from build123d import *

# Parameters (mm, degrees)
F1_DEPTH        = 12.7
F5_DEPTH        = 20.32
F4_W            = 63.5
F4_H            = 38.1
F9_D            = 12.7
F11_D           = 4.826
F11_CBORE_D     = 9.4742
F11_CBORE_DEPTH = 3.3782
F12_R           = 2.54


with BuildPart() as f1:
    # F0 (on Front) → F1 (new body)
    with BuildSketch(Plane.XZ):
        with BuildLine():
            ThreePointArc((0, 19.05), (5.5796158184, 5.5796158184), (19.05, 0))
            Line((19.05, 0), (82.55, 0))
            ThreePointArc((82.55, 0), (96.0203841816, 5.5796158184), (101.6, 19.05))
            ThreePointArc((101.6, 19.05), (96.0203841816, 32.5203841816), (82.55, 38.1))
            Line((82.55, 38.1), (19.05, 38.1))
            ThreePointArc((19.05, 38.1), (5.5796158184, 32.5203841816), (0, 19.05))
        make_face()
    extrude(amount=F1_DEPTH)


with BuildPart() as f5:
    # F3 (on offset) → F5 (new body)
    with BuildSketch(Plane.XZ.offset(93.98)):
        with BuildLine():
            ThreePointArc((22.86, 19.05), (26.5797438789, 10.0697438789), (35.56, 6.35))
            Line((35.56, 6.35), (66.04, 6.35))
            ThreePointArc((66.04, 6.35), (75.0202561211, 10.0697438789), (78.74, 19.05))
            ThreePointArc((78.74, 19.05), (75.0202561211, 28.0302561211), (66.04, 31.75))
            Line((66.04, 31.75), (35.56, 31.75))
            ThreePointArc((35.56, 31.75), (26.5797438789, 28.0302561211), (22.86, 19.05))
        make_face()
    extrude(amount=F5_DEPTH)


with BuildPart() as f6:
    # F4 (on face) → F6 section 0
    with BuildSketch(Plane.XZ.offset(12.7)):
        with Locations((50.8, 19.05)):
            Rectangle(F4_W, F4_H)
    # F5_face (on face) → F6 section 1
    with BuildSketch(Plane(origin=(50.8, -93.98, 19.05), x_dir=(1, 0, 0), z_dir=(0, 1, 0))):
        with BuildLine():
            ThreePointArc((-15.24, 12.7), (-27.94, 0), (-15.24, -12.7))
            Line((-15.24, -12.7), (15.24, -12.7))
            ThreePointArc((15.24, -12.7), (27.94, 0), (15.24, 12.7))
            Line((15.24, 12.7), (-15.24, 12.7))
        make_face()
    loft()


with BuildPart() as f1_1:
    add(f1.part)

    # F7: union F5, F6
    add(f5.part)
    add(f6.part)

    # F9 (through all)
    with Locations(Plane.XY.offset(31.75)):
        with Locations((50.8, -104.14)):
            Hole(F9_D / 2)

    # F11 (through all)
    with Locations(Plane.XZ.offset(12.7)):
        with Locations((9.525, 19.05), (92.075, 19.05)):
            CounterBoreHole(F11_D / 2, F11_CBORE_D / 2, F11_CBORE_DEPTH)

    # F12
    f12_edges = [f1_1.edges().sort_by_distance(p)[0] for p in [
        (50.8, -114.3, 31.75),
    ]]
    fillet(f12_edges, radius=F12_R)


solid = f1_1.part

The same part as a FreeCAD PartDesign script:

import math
import FreeCAD as App
import Part
import Sketcher
Q = App.Units.Quantity


def edges_at(feature, points):
    """Names of the edges that pass closest to the given points."""
    edges = feature.Shape.Edges
    near = lambda p: min(range(len(edges)), key=lambda i: edges[i].distToShape(Part.Vertex(*p))[0])
    return sorted({f"Edge{near(p) + 1}" for p in points})

doc = App.newDocument("Part")
params = doc.addObject("Spreadsheet::Sheet", "Params")
for row, (alias, value) in enumerate([
    ("sketch1_radius", "0.75 in"),
    ("sketch1_width", "2.5 in"),
    ("pad1_length", "0.5 in"),
    ("sketch2_radius", "0.5 in"),
    ("sketch2_width", "1.2 in"),
    ("pad2_length", "0.8 in"),
    ("sketch3_width", "2.5 in"),
    ("sketch3_height", "1.5 in"),
    ("sketch4_radius", "0.5 in"),
    ("sketch4_width", "1.2 in"),
    ("sketch5_diameter", "0.5 in"),
    ("hole_diameter", "0.5 in"),
    ("sketch6_diameter", "0.19 in"),
    ("hole2_diameter", "0.19 in"),
    ("hole2_cbore_diameter", "0.373 in"),
    ("hole2_cbore_depth", "0.133 in"),
    ("fillet_radius", "0.1 in"),
], start=1):
    params.set(f"A{row}", alias)
    params.set(f"B{row}", "=" + value)
    params.setAlias(f"B{row}", alias)

body = doc.addObject("PartDesign::Body", "Body")

sketch1 = body.newObject("Sketcher::SketchObject", "Sketch")
sketch1.AttachmentSupport = (doc.getObject("XZ_Plane"), [""])
sketch1.MapMode = "FlatFace"
sketch1.addGeometry(Part.ArcOfCircle(Part.Circle(App.Vector(19.05, 19.05, 0), App.Vector(0, 0, 1), 19.05), math.radians(180), math.radians(270)), False)
sketch1.addGeometry(Part.LineSegment(App.Vector(19.05, 0, 0), App.Vector(82.55, 0, 0)), False)
sketch1.addGeometry(Part.ArcOfCircle(Part.Circle(App.Vector(82.55, 19.05, 0), App.Vector(0, 0, 1), 19.05), math.radians(-90), math.radians(0)), False)
sketch1.addGeometry(Part.ArcOfCircle(Part.Circle(App.Vector(82.55, 19.05, 0), App.Vector(0, 0, 1), 19.05), math.radians(0), math.radians(90)), False)
sketch1.addGeometry(Part.LineSegment(App.Vector(82.55, 38.1, 0), App.Vector(19.05, 38.1, 0)), False)
sketch1.addGeometry(Part.ArcOfCircle(Part.Circle(App.Vector(19.05, 19.05, 0), App.Vector(0, 0, 1), 19.05), math.radians(90), math.radians(180)), False)
sketch1.addConstraint(Sketcher.Constraint("Tangent", 0, 2, 1, 1))
sketch1.addConstraint(Sketcher.Constraint("Tangent", 1, 2, 2, 1))
sketch1.addConstraint(Sketcher.Constraint("Tangent", 2, 2, 3, 1))
sketch1.addConstraint(Sketcher.Constraint("Tangent", 3, 2, 4, 1))
sketch1.addConstraint(Sketcher.Constraint("Tangent", 4, 2, 5, 1))
sketch1.addConstraint(Sketcher.Constraint("Tangent", 5, 2, 0, 1))
sketch1.addConstraint(Sketcher.Constraint("Horizontal", 1))
sketch1.addConstraint(Sketcher.Constraint("Horizontal", 4))
sketch1.addConstraint(Sketcher.Constraint("Equal", 0, 2))
sketch1.addConstraint(Sketcher.Constraint("Equal", 2, 3))
sketch1.addConstraint(Sketcher.Constraint("PointOnObject", 0, 2, -1))
sketch1.addConstraint(Sketcher.Constraint("PointOnObject", 5, 2, -2))
sketch1.addConstraint(Sketcher.Constraint("Horizontal", 5, 3, 2, 2))
sketch1.addConstraint(Sketcher.Constraint("Horizontal", 2, 2, 5, 2))
sketch1.addConstraint(Sketcher.Constraint("Radius", 0, Q("0.75 in")))
sketch1.addConstraint(Sketcher.Constraint("DistanceX", 1, 1, 1, 2, Q("2.5 in")))
sketch1.setExpression("Constraints[14]", "Params.sketch1_radius")
sketch1.setExpression("Constraints[15]", "Params.sketch1_width")
pad1 = body.newObject("PartDesign::Pad", "Pad")
pad1.Profile = sketch1
pad1.setExpression("Length", "Params.pad1_length")
body2 = doc.addObject("PartDesign::Body", "Body001")

sketch2 = body2.newObject("Sketcher::SketchObject", "Sketch001")
sketch2.AttachmentSupport = (doc.getObject("XZ_Plane001"), [""])
sketch2.MapMode = "FlatFace"
sketch2.AttachmentOffset = App.Placement(App.Vector(0, 0, 3.7 * 25.4), App.Rotation())
sketch2.addGeometry(Part.ArcOfCircle(Part.Circle(App.Vector(35.56, 19.05, 0), App.Vector(0, 0, 1), 12.7), math.radians(180), math.radians(270)), False)
sketch2.addGeometry(Part.LineSegment(App.Vector(35.56, 6.35, 0), App.Vector(66.04, 6.35, 0)), False)
sketch2.addGeometry(Part.ArcOfCircle(Part.Circle(App.Vector(66.04, 19.05, 0), App.Vector(0, 0, 1), 12.7), math.radians(-90), math.radians(0)), False)
sketch2.addGeometry(Part.ArcOfCircle(Part.Circle(App.Vector(66.04, 19.05, 0), App.Vector(0, 0, 1), 12.7), math.radians(0), math.radians(90)), False)
sketch2.addGeometry(Part.LineSegment(App.Vector(66.04, 31.75, 0), App.Vector(35.56, 31.75, 0)), False)
sketch2.addGeometry(Part.ArcOfCircle(Part.Circle(App.Vector(35.56, 19.05, 0), App.Vector(0, 0, 1), 12.7), math.radians(90), math.radians(180)), False)
sketch2.addConstraint(Sketcher.Constraint("Tangent", 0, 2, 1, 1))
sketch2.addConstraint(Sketcher.Constraint("Tangent", 1, 2, 2, 1))
sketch2.addConstraint(Sketcher.Constraint("Tangent", 2, 2, 3, 1))
sketch2.addConstraint(Sketcher.Constraint("Tangent", 3, 2, 4, 1))
sketch2.addConstraint(Sketcher.Constraint("Tangent", 4, 2, 5, 1))
sketch2.addConstraint(Sketcher.Constraint("Tangent", 5, 2, 0, 1))
sketch2.addConstraint(Sketcher.Constraint("Horizontal", 1))
sketch2.addConstraint(Sketcher.Constraint("Horizontal", 4))
sketch2.addConstraint(Sketcher.Constraint("Equal", 0, 2))
sketch2.addConstraint(Sketcher.Constraint("Equal", 2, 3))
sketch2.addConstraint(Sketcher.Constraint("Horizontal", 5, 3, 2, 2))
sketch2.addConstraint(Sketcher.Constraint("Horizontal", 2, 2, 5, 2))
sketch2.addConstraint(Sketcher.Constraint("Radius", 0, Q("0.5 in")))
sketch2.addConstraint(Sketcher.Constraint("DistanceX", 1, 1, 1, 2, Q("1.2 in")))
sketch2.addConstraint(Sketcher.Constraint("DistanceX", -1, 1, 0, 3, Q("1.4 in")))
sketch2.addConstraint(Sketcher.Constraint("DistanceY", -1, 1, 0, 3, Q("0.75 in")))
sketch2.setExpression("Constraints[12]", "Params.sketch2_radius")
sketch2.setExpression("Constraints[13]", "Params.sketch2_width")
pad2 = body2.newObject("PartDesign::Pad", "Pad001")
pad2.Profile = sketch2
pad2.setExpression("Length", "Params.pad2_length")
body3 = doc.addObject("PartDesign::Body", "Body002")

sketch3 = body3.newObject("Sketcher::SketchObject", "Sketch002")
sketch3.AttachmentSupport = (doc.getObject("XZ_Plane002"), [""])
sketch3.MapMode = "FlatFace"
sketch3.AttachmentOffset = App.Placement(App.Vector(0, 0, 0.5 * 25.4), App.Rotation())
sketch3.addGeometry(Part.LineSegment(App.Vector(19.05, 38.1, 0), App.Vector(19.05, 0, 0)), False)
sketch3.addGeometry(Part.LineSegment(App.Vector(19.05, 0, 0), App.Vector(82.55, 0, 0)), False)
sketch3.addGeometry(Part.LineSegment(App.Vector(82.55, 0, 0), App.Vector(82.55, 38.1, 0)), False)
sketch3.addGeometry(Part.LineSegment(App.Vector(82.55, 38.1, 0), App.Vector(19.05, 38.1, 0)), False)
sketch3.addConstraint(Sketcher.Constraint("Coincident", 0, 2, 1, 1))
sketch3.addConstraint(Sketcher.Constraint("Coincident", 1, 2, 2, 1))
sketch3.addConstraint(Sketcher.Constraint("Coincident", 2, 2, 3, 1))
sketch3.addConstraint(Sketcher.Constraint("Coincident", 3, 2, 0, 1))
sketch3.addConstraint(Sketcher.Constraint("Vertical", 0))
sketch3.addConstraint(Sketcher.Constraint("Horizontal", 1))
sketch3.addConstraint(Sketcher.Constraint("Vertical", 2))
sketch3.addConstraint(Sketcher.Constraint("Horizontal", 3))
sketch3.addConstraint(Sketcher.Constraint("PointOnObject", 0, 2, -1))
sketch3.addConstraint(Sketcher.Constraint("DistanceX", 1, 1, 1, 2, Q("2.5 in")))
sketch3.addConstraint(Sketcher.Constraint("DistanceY", 0, 2, 0, 1, Q("1.5 in")))
sketch3.addConstraint(Sketcher.Constraint("DistanceX", -1, 1, 0, 2, Q("0.75 in")))
sketch3.setExpression("Constraints[9]", "Params.sketch3_width")
sketch3.setExpression("Constraints[10]", "Params.sketch3_height")

sketch4 = body3.newObject("Sketcher::SketchObject", "Sketch003")
sketch4.AttachmentSupport = (doc.getObject("XZ_Plane002"), [""])
sketch4.MapMode = "FlatFace"
sketch4.AttachmentOffset = App.Placement(App.Vector(0, 0, 3.7 * 25.4), App.Rotation())
sketch4.addGeometry(Part.ArcOfCircle(Part.Circle(App.Vector(35.56, 19.05, 0), App.Vector(0, 0, 1), 12.7), math.radians(90), math.radians(270)), False)
sketch4.addGeometry(Part.LineSegment(App.Vector(35.56, 31.75, 0), App.Vector(66.04, 31.75, 0)), False)
sketch4.addGeometry(Part.ArcOfCircle(Part.Circle(App.Vector(66.04, 19.05, 0), App.Vector(0, 0, 1), 12.7), math.radians(-90), math.radians(90)), False)
sketch4.addGeometry(Part.LineSegment(App.Vector(66.04, 6.35, 0), App.Vector(35.56, 6.35, 0)), False)
sketch4.addConstraint(Sketcher.Constraint("Tangent", 0, 1, 1, 1))
sketch4.addConstraint(Sketcher.Constraint("Tangent", 1, 2, 2, 2))
sketch4.addConstraint(Sketcher.Constraint("Tangent", 2, 1, 3, 1))
sketch4.addConstraint(Sketcher.Constraint("Tangent", 3, 2, 0, 2))
sketch4.addConstraint(Sketcher.Constraint("Horizontal", 1))
sketch4.addConstraint(Sketcher.Constraint("Horizontal", 3))
sketch4.addConstraint(Sketcher.Constraint("Radius", 0, Q("0.5 in")))
sketch4.addConstraint(Sketcher.Constraint("DistanceX", 1, 1, 1, 2, Q("1.2 in")))
sketch4.addConstraint(Sketcher.Constraint("DistanceX", -1, 1, 0, 3, Q("1.4 in")))
sketch4.addConstraint(Sketcher.Constraint("DistanceY", -1, 1, 0, 3, Q("0.75 in")))
sketch4.setExpression("Constraints[6]", "Params.sketch4_radius")
sketch4.setExpression("Constraints[7]", "Params.sketch4_width")

additiveloft = body3.newObject("PartDesign::AdditiveLoft", "AdditiveLoft")
additiveloft.Profile = sketch3
additiveloft.Sections = [sketch4]
body.AllowCompound = True
doc.recompute()

boolean = body.newObject("PartDesign::Boolean", "Boolean")
boolean.Type = "Fuse"
boolean.addObjects([body2])
doc.recompute()

boolean2 = body.newObject("PartDesign::Boolean", "Boolean001")
boolean2.Type = "Fuse"
boolean2.addObjects([body3])

sketch5 = body.newObject("Sketcher::SketchObject", "Sketch004")
sketch5.AttachmentSupport = (doc.getObject("XY_Plane"), [""])
sketch5.MapMode = "FlatFace"
sketch5.AttachmentOffset = App.Placement(App.Vector(0, 0, 1.25 * 25.4), App.Rotation())
sketch5.addGeometry(Part.Circle(App.Vector(50.8, -104.14, 0), App.Vector(0, 0, 1), 6.35), False)
sketch5.addConstraint(Sketcher.Constraint("Diameter", 0, Q("0.5 in")))
sketch5.addConstraint(Sketcher.Constraint("DistanceX", -1, 1, 0, 3, Q("2 in")))
sketch5.addConstraint(Sketcher.Constraint("DistanceY", 0, 3, -1, 1, Q("4.1 in")))
sketch5.setExpression("Constraints[0]", "Params.sketch5_diameter")
doc.recompute()
hole = body.newObject("PartDesign::Hole", "Hole")
hole.Profile = sketch5
hole.ThreadType = "None"
hole.setExpression("Diameter", "Params.hole_diameter")
hole.DepthType = "ThroughAll"

sketch6 = body.newObject("Sketcher::SketchObject", "Sketch005")
sketch6.AttachmentSupport = (doc.getObject("XZ_Plane"), [""])
sketch6.MapMode = "FlatFace"
sketch6.AttachmentOffset = App.Placement(App.Vector(0, 0, 0.5 * 25.4), App.Rotation())
sketch6.addGeometry(Part.Circle(App.Vector(9.525, 19.05, 0), App.Vector(0, 0, 1), 2.413), False)
sketch6.addGeometry(Part.Circle(App.Vector(92.075, 19.05, 0), App.Vector(0, 0, 1), 2.413), False)
sketch6.addConstraint(Sketcher.Constraint("Equal", 0, 1))
sketch6.addConstraint(Sketcher.Constraint("Horizontal", 0, 3, 1, 3))
sketch6.addConstraint(Sketcher.Constraint("Diameter", 0, Q("0.19 in")))
sketch6.addConstraint(Sketcher.Constraint("DistanceY", -1, 1, 0, 3, Q("0.75 in")))
sketch6.addConstraint(Sketcher.Constraint("DistanceX", 0, 3, 1, 3, Q("3.25 in")))
sketch6.addConstraint(Sketcher.Constraint("DistanceX", -1, 1, 0, 3, Q("0.375 in")))
sketch6.setExpression("Constraints[2]", "Params.sketch6_diameter")
doc.recompute()
hole2 = body.newObject("PartDesign::Hole", "Hole001")
hole2.Profile = sketch6
hole2.ThreadType = "None"
hole2.setExpression("Diameter", "Params.hole2_diameter")
hole2.DepthType = "ThroughAll"
hole2.HoleCutType = "Counterbore"
hole2.setExpression("HoleCutDiameter", "Params.hole2_cbore_diameter")
hole2.setExpression("HoleCutDepth", "Params.hole2_cbore_depth")
doc.recompute()

fillet = body.newObject("PartDesign::Fillet", "Fillet")
fillet.Base = (hole2, edges_at(hole2, [(50.8, -114.3, 31.75)]))
fillet.setExpression("Radius", "Params.fillet_radius")

doc.recompute()
